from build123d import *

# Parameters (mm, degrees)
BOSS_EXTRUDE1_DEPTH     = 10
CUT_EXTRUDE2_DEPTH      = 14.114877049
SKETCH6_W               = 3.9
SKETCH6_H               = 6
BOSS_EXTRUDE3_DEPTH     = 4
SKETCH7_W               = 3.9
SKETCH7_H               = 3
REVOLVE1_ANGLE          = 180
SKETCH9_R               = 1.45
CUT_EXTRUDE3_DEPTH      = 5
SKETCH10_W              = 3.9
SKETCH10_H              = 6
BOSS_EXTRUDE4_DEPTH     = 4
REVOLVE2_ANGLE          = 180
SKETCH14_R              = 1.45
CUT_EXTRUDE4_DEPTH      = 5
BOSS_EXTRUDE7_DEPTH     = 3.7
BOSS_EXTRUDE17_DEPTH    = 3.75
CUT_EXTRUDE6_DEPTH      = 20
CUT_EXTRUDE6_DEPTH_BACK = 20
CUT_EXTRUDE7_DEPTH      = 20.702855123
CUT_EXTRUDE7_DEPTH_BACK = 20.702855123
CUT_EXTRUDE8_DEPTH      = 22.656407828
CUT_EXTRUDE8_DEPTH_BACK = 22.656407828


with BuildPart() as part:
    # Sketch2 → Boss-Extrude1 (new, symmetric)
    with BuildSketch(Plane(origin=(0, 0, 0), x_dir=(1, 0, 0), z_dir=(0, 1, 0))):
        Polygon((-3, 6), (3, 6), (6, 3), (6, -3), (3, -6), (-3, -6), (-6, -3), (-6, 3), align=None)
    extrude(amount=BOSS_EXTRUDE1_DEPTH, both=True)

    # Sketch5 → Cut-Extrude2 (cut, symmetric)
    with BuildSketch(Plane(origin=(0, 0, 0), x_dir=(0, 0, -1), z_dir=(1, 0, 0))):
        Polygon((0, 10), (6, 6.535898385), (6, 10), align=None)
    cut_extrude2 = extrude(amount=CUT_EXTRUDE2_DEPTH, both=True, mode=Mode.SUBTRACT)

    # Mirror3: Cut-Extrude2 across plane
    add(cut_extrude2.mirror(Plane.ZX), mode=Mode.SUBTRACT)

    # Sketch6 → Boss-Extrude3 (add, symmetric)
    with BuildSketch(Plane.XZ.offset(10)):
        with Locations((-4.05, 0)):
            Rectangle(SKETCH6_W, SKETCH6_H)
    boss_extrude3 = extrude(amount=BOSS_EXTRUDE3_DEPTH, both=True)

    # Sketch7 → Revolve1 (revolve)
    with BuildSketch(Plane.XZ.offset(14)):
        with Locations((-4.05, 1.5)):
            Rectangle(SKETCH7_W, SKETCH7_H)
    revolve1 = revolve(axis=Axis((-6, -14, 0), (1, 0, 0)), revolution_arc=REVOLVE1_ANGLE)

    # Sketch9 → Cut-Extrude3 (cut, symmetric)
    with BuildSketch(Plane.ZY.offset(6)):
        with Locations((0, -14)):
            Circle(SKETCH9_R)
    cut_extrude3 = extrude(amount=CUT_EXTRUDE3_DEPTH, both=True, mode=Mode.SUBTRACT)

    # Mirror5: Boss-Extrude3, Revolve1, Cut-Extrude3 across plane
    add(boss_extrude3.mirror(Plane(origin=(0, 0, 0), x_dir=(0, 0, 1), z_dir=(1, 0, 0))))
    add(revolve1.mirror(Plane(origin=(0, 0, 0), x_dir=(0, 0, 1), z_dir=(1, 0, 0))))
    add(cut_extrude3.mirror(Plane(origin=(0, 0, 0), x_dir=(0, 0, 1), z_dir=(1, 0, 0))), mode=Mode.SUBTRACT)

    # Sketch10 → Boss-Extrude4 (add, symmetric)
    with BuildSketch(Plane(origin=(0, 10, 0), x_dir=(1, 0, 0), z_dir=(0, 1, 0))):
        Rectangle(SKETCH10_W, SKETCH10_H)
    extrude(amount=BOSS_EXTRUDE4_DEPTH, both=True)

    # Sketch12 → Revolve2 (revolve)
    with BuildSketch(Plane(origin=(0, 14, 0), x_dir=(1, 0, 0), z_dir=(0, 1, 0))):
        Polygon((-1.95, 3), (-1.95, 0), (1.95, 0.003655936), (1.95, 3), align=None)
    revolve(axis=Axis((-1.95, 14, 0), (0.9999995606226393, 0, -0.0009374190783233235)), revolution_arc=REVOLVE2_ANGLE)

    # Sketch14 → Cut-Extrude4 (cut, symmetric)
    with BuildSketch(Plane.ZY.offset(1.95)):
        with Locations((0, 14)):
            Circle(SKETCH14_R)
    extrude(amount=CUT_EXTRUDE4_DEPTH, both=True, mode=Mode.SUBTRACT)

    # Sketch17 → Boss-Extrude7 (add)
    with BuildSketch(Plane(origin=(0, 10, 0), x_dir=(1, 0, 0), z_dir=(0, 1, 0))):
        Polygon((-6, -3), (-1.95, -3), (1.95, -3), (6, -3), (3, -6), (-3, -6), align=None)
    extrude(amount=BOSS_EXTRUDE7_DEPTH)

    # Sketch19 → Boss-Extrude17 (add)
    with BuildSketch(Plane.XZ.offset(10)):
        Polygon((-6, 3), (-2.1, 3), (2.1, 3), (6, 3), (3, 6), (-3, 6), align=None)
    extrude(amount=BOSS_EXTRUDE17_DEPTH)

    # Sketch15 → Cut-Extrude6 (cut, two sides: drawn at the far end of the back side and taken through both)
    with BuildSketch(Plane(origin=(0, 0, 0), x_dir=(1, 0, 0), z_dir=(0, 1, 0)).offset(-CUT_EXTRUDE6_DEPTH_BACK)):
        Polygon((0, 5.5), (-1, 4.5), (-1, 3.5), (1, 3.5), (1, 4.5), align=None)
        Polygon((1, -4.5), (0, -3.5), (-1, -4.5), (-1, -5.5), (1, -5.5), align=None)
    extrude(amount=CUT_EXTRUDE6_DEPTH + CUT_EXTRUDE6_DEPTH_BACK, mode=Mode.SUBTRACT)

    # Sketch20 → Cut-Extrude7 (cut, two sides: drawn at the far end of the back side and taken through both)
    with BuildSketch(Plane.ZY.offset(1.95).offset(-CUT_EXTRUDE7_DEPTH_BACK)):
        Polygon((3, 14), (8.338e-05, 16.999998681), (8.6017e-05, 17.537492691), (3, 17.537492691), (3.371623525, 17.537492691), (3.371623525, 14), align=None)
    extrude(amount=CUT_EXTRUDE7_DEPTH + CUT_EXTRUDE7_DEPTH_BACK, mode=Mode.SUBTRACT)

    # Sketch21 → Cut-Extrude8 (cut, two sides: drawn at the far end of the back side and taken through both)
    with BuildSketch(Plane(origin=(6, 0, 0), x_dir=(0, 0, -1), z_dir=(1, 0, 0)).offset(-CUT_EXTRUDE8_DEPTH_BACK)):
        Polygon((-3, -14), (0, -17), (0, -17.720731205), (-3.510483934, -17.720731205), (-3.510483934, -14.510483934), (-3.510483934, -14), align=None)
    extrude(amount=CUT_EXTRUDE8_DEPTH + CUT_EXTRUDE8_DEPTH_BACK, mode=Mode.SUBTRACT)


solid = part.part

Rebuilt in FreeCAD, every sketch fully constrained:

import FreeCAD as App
import Part
import Sketcher
from FreeCAD import Vector
Q = App.Units.Quantity


def add_polygon(sketch, points):
    """Adds a closed chain of lines whose ends are joined by coincident constraints."""
    first, n = sketch.GeometryCount, len(points)
    for a, b in zip(points, points[1:] + points[:1]):
        sketch.addGeometry(Part.LineSegment(App.Vector(*a, 0), App.Vector(*b, 0)), False)
    for i in range(n):
        sketch.addConstraint(Sketcher.Constraint("Coincident", first + i, 2, first + (i + 1) % n, 1))

doc = App.newDocument("Part")
params = doc.addObject("Spreadsheet::Sheet", "Params")
for row, (alias, value) in enumerate([
    ("sketch1_width", "6 mm"),
    ("pad1_length", "20 mm"),
    ("sketch2_height", "6 mm"),
    ("pocket1_length", "28.229754 mm"),
    ("sketch3_height", "6 mm"),
    ("sketch3_width", "3.9 mm"),
    ("pad2_length", "8 mm"),
    ("sketch4_height", "3 mm"),
    ("sketch4_width", "3.9 mm"),
    ("revolution_angle", "180 deg"),
    ("sketch5_diameter", "2.9 mm"),
    ("pocket2_length", "10 mm"),
    ("sketch6_height", "6 mm"),
    ("sketch6_width", "3.9 mm"),
    ("pad3_length", "8 mm"),
    ("sketch7_height", "3 mm"),
    ("sketch7_width", "3.9 mm"),
    ("revolution2_angle", "180 deg"),
    ("sketch8_diameter", "2.9 mm"),
    ("pocket3_length", "10 mm"),
    ("sketch9_width", "12 mm"),
    ("sketch9_width2", "6 mm"),
    ("pad4_length", "3.7 mm"),
    ("sketch10_width", "12 mm"),
    ("sketch10_width2", "6 mm"),
    ("pad5_length", "3.75 mm"),
    ("sketch11_width", "2 mm"),
    ("sketch11_height", "1 mm"),
], start=1):
    params.set(f"A{row}", alias)
    params.set(f"B{row}", "=" + value)
    params.setAlias(f"B{row}", alias)

body = doc.addObject("PartDesign::Body", "Body")

sketch1 = body.newObject("Sketcher::SketchObject", "Sketch")
sketch1.AttachmentSupport = (doc.getObject("XZ_Plane"), [""])
sketch1.MapMode = "FlatFace"
add_polygon(sketch1, [(3, -6), (-3, -6), (-6, -3), (-6, 3), (-3, 6), (3, 6), (6, 3), (6, -3)])
sketch1.addConstraint([
    Sketcher.Constraint("Horizontal", 0),
    Sketcher.Constraint("Vertical", 2),
    Sketcher.Constraint("Horizontal", 4),
    Sketcher.Constraint("Vertical", 6),
    Sketcher.Constraint("Symmetric", 0, 2, 4, 2, -1, 1),
    Sketcher.Constraint("Symmetric", 1, 2, 5, 2, -1, 1),
    Sketcher.Constraint("Perpendicular", 1, 3),
    Sketcher.Constraint("Perpendicular", 5, 7),
    Sketcher.Constraint("Horizontal", 2, 2, 5, 2),
    Sketcher.Constraint("Horizontal", 1, 2, 6, 2),
    Sketcher.Constraint("Vertical", 0, 2, 3, 2),
    Sketcher.Constraint("Equal", 4, 2),
    Sketcher.Constraint("DistanceX", 0, 2, 0, 1, 6.0),
    Sketcher.Constraint("DistanceY", 0, 2, -1, 1, 6.0),
])
sketch1.setExpression("Constraints[20]", "Params.sketch1_width")
pad1 = body.newObject("PartDesign::Pad", "Pad")
pad1.Profile = sketch1
pad1.setExpression("Length", "Params.pad1_length")
pad1.Midplane = True

sketch2 = body.newObject("Sketcher::SketchObject", "Sketch001")
sketch2.AttachmentSupport = (doc.getObject("YZ_Plane"), [""])
sketch2.MapMode = "FlatFace"
add_polygon(sketch2, [(10, 0), (6.535898, -6), (10, -6)])
sketch2.addConstraint([
    Sketcher.Constraint("Horizontal", 1),
    Sketcher.Constraint("Vertical", 2),
    Sketcher.Constraint("PointOnObject", 2, 2, -1),
    Sketcher.Constraint("DistanceY", 2, 1, 2, 2, 6.0),
    Sketcher.Constraint("Angle", 0, Q("-120 deg")),
    Sketcher.Constraint("DistanceX", -1, 1, 1, 2, 10.0),
])
sketch2.setExpression("Constraints[6]", "Params.sketch2_height")
pocket1 = body.newObject("PartDesign::Pocket", "Pocket")
pocket1.Profile = sketch2
pocket1.setExpression("Length", "Params.pocket1_length")
pocket1.Midplane = True
doc.recompute()

mirrored = body.newObject("PartDesign::Mirrored", "Mirrored")
mirrored.Originals = [pocket1]
mirrored.MirrorPlane = (doc.getObject("XZ_Plane"), [""])
body.Tip = mirrored

sketch3 = body.newObject("Sketcher::SketchObject", "Sketch002")
sketch3.AttachmentSupport = (doc.getObject("XZ_Plane"), [""])
sketch3.MapMode = "FlatFace"
sketch3.AttachmentOffset = App.Placement(Vector(0, 0, 10), App.Rotation())
add_polygon(sketch3, [(-6, 3), (-6, -3), (-2.1, -3), (-2.1, 3)])
sketch3.addConstraint([
    Sketcher.Constraint("Vertical", 0),
    Sketcher.Constraint("Horizontal", 1),
    Sketcher.Constraint("Vertical", 2),
    Sketcher.Constraint("Horizontal", 3),
    Sketcher.Constraint("DistanceY", 0, 2, 0, 1, 6.0),
    Sketcher.Constraint("DistanceX", 1, 1, 1, 2, 3.9),
    Sketcher.Constraint("DistanceX", 0, 2, -1, 1, 6.0),
    Sketcher.Constraint("DistanceY", 0, 2, -1, 1, 3.0),
])
sketch3.setExpression("Constraints[8]", "Params.sketch3_height")
sketch3.setExpression("Constraints[9]", "Params.sketch3_width")
pad2 = body.newObject("PartDesign::Pad", "Pad001")
pad2.Profile = sketch3
pad2.setExpression("Length", "Params.pad2_length")
pad2.Midplane = True

sketch4 = body.newObject("Sketcher::SketchObject", "Sketch003")
sketch4.AttachmentSupport = (doc.getObject("XZ_Plane"), [""])
sketch4.MapMode = "FlatFace"
sketch4.AttachmentOffset = App.Placement(Vector(0, 0, 14), App.Rotation())
add_polygon(sketch4, [(-6, 3), (-6, 0), (-2.1, 0), (-2.1, 3)])
sketch4.addConstraint([
    Sketcher.Constraint("Vertical", 0),
    Sketcher.Constraint("Horizontal", 1),
    Sketcher.Constraint("Vertical", 2),
    Sketcher.Constraint("Horizontal", 3),
    Sketcher.Constraint("PointOnObject", 0, 2, -1),
    Sketcher.Constraint("DistanceY", 0, 2, 0, 1, 3.0),
    Sketcher.Constraint("DistanceX", 1, 1, 1, 2, 3.9),
    Sketcher.Constraint("DistanceX", 0, 2, -1, 1, 6.0),
])
sketch4.setExpression("Constraints[9]", "Params.sketch4_height")
sketch4.setExpression("Constraints[10]", "Params.sketch4_width")
revolution = body.newObject("PartDesign::Revolution", "Revolution")
revolution.Profile = sketch4
revolution.ReferenceAxis = (sketch4, ["H_Axis"])
revolution.setExpression("Angle", "Params.revolution_angle")

sketch5 = body.newObject("Sketcher::SketchObject", "Sketch004")
sketch5.AttachmentSupport = (doc.getObject("YZ_Plane"), [""])
sketch5.MapMode = "FlatFace"
sketch5.AttachmentOffset = App.Placement(Vector(0, 0, -6), App.Rotation())
sketch5.addGeometry(Part.Circle(Vector(-14, 0, 0), Vector(0, 0, 1), 1.45), False)
sketch5.addConstraint([
    Sketcher.Constraint("PointOnObject", 0, 3, -1),
    Sketcher.Constraint("Diameter", 0, 2.9),
    Sketcher.Constraint("DistanceX", 0, 3, -1, 1, 14.0),
])
sketch5.setExpression("Constraints[1]", "Params.sketch5_diameter")
pocket2 = body.newObject("PartDesign::Pocket", "Pocket001")
pocket2.Profile = sketch5
pocket2.setExpression("Length", "Params.pocket2_length")
pocket2.Midplane = True
doc.recompute()

mirrored2 = body.newObject("PartDesign::Mirrored", "Mirrored001")
mirrored2.Originals = [pad2, revolution, pocket2]
mirrored2.MirrorPlane = (doc.getObject("YZ_Plane"), [""])
body.Tip = mirrored2

sketch6 = body.newObject("Sketcher::SketchObject", "Sketch005")
sketch6.AttachmentSupport = (doc.getObject("XZ_Plane"), [""])
sketch6.MapMode = "FlatFace"
sketch6.AttachmentOffset = App.Placement(Vector(0, 0, -10), App.Rotation())
add_polygon(sketch6, [(-1.95, -3), (-1.95, 3), (1.95, 3), (1.95, -3)])
sketch6.addConstraint([
    Sketcher.Constraint("Vertical", 0),
    Sketcher.Constraint("Horizontal", 1),
    Sketcher.Constraint("Vertical", 2),
    Sketcher.Constraint("Horizontal", 3),
    Sketcher.Constraint("Symmetric", 0, 2, 2, 2, -1, 1),
    Sketcher.Constraint("DistanceY", 0, 1, 0, 2, 6.0),
    Sketcher.Constraint("DistanceX", 1, 1, 1, 2, 3.9),
])
sketch6.setExpression("Constraints[9]", "Params.sketch6_height")
sketch6.setExpression("Constraints[10]", "Params.sketch6_width")
pad3 = body.newObject("PartDesign::Pad", "Pad002")
pad3.Profile = sketch6
pad3.setExpression("Length", "Params.pad3_length")
pad3.Midplane = True

sketch7 = body.newObject("Sketcher::SketchObject", "Sketch006")
sketch7.AttachmentSupport = (doc.getObject("XZ_Plane"), [""])
sketch7.MapMode = "FlatFace"
sketch7.AttachmentOffset = App.Placement(Vector(0, 0, -14), App.Rotation())
add_polygon(sketch7, [(-1.95, -3), (-1.95, 0), (1.95, -0.003656), (1.95, -3)])
sketch7.addGeometry(Part.LineSegment(Vector(-1.95, 0, 0), Vector(1.952809, -0.003659, 0)), True)
sketch7.addConstraint([
    Sketcher.Constraint("Vertical", 0),
    Sketcher.Constraint("Vertical", 2),
    Sketcher.Constraint("Horizontal", 3),
    Sketcher.Constraint("Coincident", 4, 1, 0, 2),
    Sketcher.Constraint("PointOnObject", 0, 2, -1),
    Sketcher.Constraint("Parallel", 1, 4),
    Sketcher.Constraint("DistanceY", 0, 1, 0, 2, 3.0),
    Sketcher.Constraint("DistanceX", 3, 2, 3, 1, 3.9),
    Sketcher.Constraint("DistanceX", 0, 2, -1, 1, 1.95),
    Sketcher.Constraint("Distance", 4, 3.902811),
    Sketcher.Constraint("DistanceY", 2, 2, 2, 1, 2.996344),
])
sketch7.setExpression("Constraints[10]", "Params.sketch7_height")
sketch7.setExpression("Constraints[11]", "Params.sketch7_width")
revolution2 = body.newObject("PartDesign::Revolution", "Revolution001")
revolution2.Profile = sketch7
revolution2.ReferenceAxis = (sketch7, ["Axis0"])
revolution2.setExpression("Angle", "Params.revolution2_angle")

sketch8 = body.newObject("Sketcher::SketchObject", "Sketch007")
sketch8.AttachmentSupport = (doc.getObject("YZ_Plane"), [""])
sketch8.MapMode = "FlatFace"
sketch8.AttachmentOffset = App.Placement(Vector(0, 0, -1.95), App.Rotation())
sketch8.addGeometry(Part.Circle(Vector(14, 0, 0), Vector(0, 0, 1), 1.45), False)
sketch8.addConstraint([
    Sketcher.Constraint("PointOnObject", 0, 3, -1),
    Sketcher.Constraint("Diameter", 0, 2.9),
    Sketcher.Constraint("DistanceX", -1, 1, 0, 3, 14.0),
])
sketch8.setExpression("Constraints[1]", "Params.sketch8_diameter")
pocket3 = body.newObject("PartDesign::Pocket", "Pocket002")
pocket3.Profile = sketch8
pocket3.setExpression("Length", "Params.pocket3_length")
pocket3.Midplane = True

sketch9 = body.newObject("Sketcher::SketchObject", "Sketch008")
sketch9.AttachmentSupport = (doc.getObject("XZ_Plane"), [""])
sketch9.MapMode = "FlatFace"
sketch9.AttachmentOffset = App.Placement(Vector(0, 0, -10), App.Rotation())
add_polygon(sketch9, [(6, 3), (-6, 3), (-3, 6), (3, 6)])
sketch9.addConstraint([
    Sketcher.Constraint("Horizontal", 0),
    Sketcher.Constraint("Horizontal", 2),
    Sketcher.Constraint("Perpendicular", 1, 3),
    Sketcher.Constraint("Equal", 1, 3),
    Sketcher.Constraint("DistanceX", 0, 2, 0, 1, 12.0),
    Sketcher.Constraint("DistanceX", 2, 1, 2, 2, 6.0),
    Sketcher.Constraint("DistanceX", 0, 2, -1, 1, 6.0),
    Sketcher.Constraint("DistanceY", -1, 1, 0, 2, 3.0),
])
sketch9.setExpression("Constraints[8]", "Params.sketch9_width")
sketch9.setExpression("Constraints[9]", "Params.sketch9_width2")
pad4 = body.newObject("PartDesign::Pad", "Pad003")
pad4.Profile = sketch9
pad4.setExpression("Length", "Params.pad4_length")
pad4.Reversed = True

sketch10 = body.newObject("Sketcher::SketchObject", "Sketch009")
sketch10.AttachmentSupport = (doc.getObject("XZ_Plane"), [""])
sketch10.MapMode = "FlatFace"
sketch10.AttachmentOffset = App.Placement(Vector(0, 0, 10), App.Rotation())
add_polygon(sketch10, [(-6, 3), (6, 3), (3, 6), (-3, 6)])
sketch10.addConstraint([
    Sketcher.Constraint("Horizontal", 0),
    Sketcher.Constraint("Horizontal", 2),
    Sketcher.Constraint("Perpendicular", 1, 3),
    Sketcher.Constraint("Equal", 1, 3),
    Sketcher.Constraint("DistanceX", 0, 1, 0, 2, 12.0),
    Sketcher.Constraint("DistanceX", 2, 2, 2, 1, 6.0),
    Sketcher.Constraint("DistanceX", -1, 1, 0, 2, 6.0),
    Sketcher.Constraint("DistanceY", -1, 1, 0, 2, 3.0),
])
sketch10.setExpression("Constraints[8]", "Params.sketch10_width")
sketch10.setExpression("Constraints[9]", "Params.sketch10_width2")
pad5 = body.newObject("PartDesign::Pad", "Pad004")
pad5.Profile = sketch10
pad5.setExpression("Length", "Params.pad5_length")

sketch11 = body.newObject("Sketcher::SketchObject", "Sketch010")
sketch11.AttachmentSupport = (doc.getObject("XZ_Plane"), [""])
sketch11.MapMode = "FlatFace"
add_polygon(sketch11, [(0, -5.5), (-1, -4.5), (-1, -3.5), (1, -3.5), (1, -4.5)])
add_polygon(sketch11, [(1, 4.5), (0, 3.5), (-1, 4.5), (-1, 5.5), (1, 5.5)])
sketch11.addConstraint([
    Sketcher.Constraint("Vertical", 1),
    Sketcher.Constraint("Horizontal", 2),
    Sketcher.Constraint("Vertical", 3),
    Sketcher.Constraint("Vertical", 7),
    Sketcher.Constraint("Horizontal", 8),
    Sketcher.Constraint("Vertical", 9),
    Sketcher.Constraint("Symmetric", 3, 2, 6, 2, -1, 1),
    Sketcher.Constraint("Symmetric", 0, 2, 9, 2, -1, 1),
    Sketcher.Constraint("Symmetric", 0, 2, 3, 2, -2),
    Sketcher.Constraint("PointOnObject", 4, 2, -2),
    Sketcher.Constraint("PointOnObject", 5, 2, -2),
    Sketcher.Constraint("Perpendicular", 0, 4),
    Sketcher.Constraint("Parallel", 4, 5),
    Sketcher.Constraint("Equal", 3, 7),
    Sketcher.Constraint("DistanceX", 2, 1, 2, 2, 2.0),
    Sketcher.Constraint("DistanceY", 1, 1, 1, 2, 1.0),
    Sketcher.Constraint("DistanceY", 1, 2, 5, 2, 7.0),
])
sketch11.setExpression("Constraints[24]", "Params.sketch11_width")
sketch11.setExpression("Constraints[25]", "Params.sketch11_height")
pocket4 = body.newObject("PartDesign::Pocket", "Pocket003")
pocket4.Profile = sketch11
pocket4.Type = "ThroughAll"
pocket4.Midplane = True

sketch12 = body.newObject("Sketcher::SketchObject", "Sketch011")
sketch12.AttachmentSupport = (doc.getObject("YZ_Plane"), [""])
sketch12.MapMode = "FlatFace"
sketch12.AttachmentOffset = App.Placement(Vector(0, 0, -1.95), App.Rotation())
add_polygon(sketch12, [(16.999999, 0.000083), (14, 3), (14, 3.371624), (17.537493, 3.371624), (17.537493, 0.000086)])
sketch12.addConstraint([
    Sketcher.Constraint("Vertical", 1),
    Sketcher.Constraint("Horizontal", 2),
    Sketcher.Constraint("Vertical", 3),
    Sketcher.Constraint("DistanceX", -1, 1, 0, 2, 14.0),
    Sketcher.Constraint("DistanceY", -1, 1, 0, 2, 3.0),
    Sketcher.Constraint("DistanceX", -1, 1, 4, 2, 16.999999),
    Sketcher.Constraint("Distance", 0, 4.242581),
    Sketcher.Constraint("DistanceX", 2, 1, 2, 2, 3.537493),
    Sketcher.Constraint("DistanceY", 1, 1, 1, 2, 0.371624),
    Sketcher.Constraint("DistanceY", 3, 2, 3, 1, 3.371538),
])
pocket5 = body.newObject("PartDesign::Pocket", "Pocket004")
pocket5.Profile = sketch12
pocket5.Type = "ThroughAll"
pocket5.Midplane = True

sketch13 = body.newObject("Sketcher::SketchObject", "Sketch012")
sketch13.AttachmentSupport = (doc.getObject("YZ_Plane"), [""])
sketch13.MapMode = "FlatFace"
sketch13.AttachmentOffset = App.Placement(Vector(0, 0, 6), App.Rotation())
add_polygon(sketch13, [(-17, 0), (-14, 3), (-14, 3.510484), (-17.720731, 3.510484), (-17.720731, 0)])
sketch13.addConstraint([
    Sketcher.Constraint("Vertical", 1),
    Sketcher.Constraint("Horizontal", 2),
    Sketcher.Constraint("Vertical", 3),
    Sketcher.Constraint("Horizontal", 4),
    Sketcher.Constraint("PointOnObject", 3, 2, -1),
    Sketcher.Constraint("Angle", 0, Q("45 deg")),
    Sketcher.Constraint("DistanceX", 0, 2, -1, 1, 14.0),
    Sketcher.Constraint("DistanceY", -1, 1, 0, 2, 3.0),
    Sketcher.Constraint("DistanceX", 2, 2, 2, 1, 3.720731),
    Sketcher.Constraint("DistanceY", 1, 1, 1, 2, 0.510484),
])
pocket6 = body.newObject("PartDesign::Pocket", "Pocket005")
pocket6.Profile = sketch13
pocket6.Type = "ThroughAll"
pocket6.Midplane = True

doc.recompute()
